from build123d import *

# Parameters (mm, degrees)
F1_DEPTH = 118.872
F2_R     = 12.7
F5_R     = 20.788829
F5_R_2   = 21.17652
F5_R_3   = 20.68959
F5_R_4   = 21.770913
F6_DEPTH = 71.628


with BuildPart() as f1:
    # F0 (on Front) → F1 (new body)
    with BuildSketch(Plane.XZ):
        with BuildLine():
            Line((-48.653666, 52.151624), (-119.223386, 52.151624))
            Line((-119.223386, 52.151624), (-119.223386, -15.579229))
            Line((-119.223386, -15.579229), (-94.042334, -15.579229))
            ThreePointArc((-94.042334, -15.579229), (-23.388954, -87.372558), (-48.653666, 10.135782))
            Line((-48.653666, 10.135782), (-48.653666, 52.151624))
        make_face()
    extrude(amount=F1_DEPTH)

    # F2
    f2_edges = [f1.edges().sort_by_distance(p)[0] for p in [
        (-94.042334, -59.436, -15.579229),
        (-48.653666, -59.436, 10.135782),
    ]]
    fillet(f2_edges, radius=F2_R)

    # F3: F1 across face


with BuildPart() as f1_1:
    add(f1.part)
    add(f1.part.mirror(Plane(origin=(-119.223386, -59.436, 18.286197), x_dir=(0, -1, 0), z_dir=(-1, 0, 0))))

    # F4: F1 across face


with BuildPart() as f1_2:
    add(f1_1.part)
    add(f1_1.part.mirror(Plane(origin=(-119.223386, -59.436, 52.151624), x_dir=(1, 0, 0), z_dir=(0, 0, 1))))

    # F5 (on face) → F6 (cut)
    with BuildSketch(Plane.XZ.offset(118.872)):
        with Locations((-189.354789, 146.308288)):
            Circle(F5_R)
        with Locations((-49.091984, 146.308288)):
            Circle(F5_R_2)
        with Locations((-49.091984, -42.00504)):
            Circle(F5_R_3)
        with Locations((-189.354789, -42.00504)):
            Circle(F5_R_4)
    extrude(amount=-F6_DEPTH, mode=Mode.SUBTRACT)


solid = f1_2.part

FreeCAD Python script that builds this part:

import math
import FreeCAD as App
import Part
import Sketcher
Q = App.Units.Quantity


def edges_at(feature, points):
    """Names of the edges that pass closest to the given points."""
    edges = feature.Shape.Edges
    near = lambda p: min(range(len(edges)), key=lambda i: edges[i].distToShape(Part.Vertex(*p))[0])
    return sorted({f"Edge{near(p) + 1}" for p in points})

doc = App.newDocument("Part")
body = doc.addObject("PartDesign::Body", "Body")

sketch1 = body.newObject("Sketcher::SketchObject", "Sketch")
sketch1.AttachmentSupport = (doc.getObject("XZ_Plane"), [""])
sketch1.MapMode = "FlatFace"
sketch1.addGeometry([
    Part.LineSegment(App.Vector(-49, 52, 0), App.Vector(-119, 52, 0)),
    Part.LineSegment(App.Vector(-119, 52, 0), App.Vector(-119, -16, 0)),
    Part.LineSegment(App.Vector(-119, -16, 0), App.Vector(-94, -16, 0)),
    Part.ArcOfCircle(Part.Circle(App.Vector(-49, -42, 0), App.Vector(0, 0, 1), 52), math.radians(150), math.radians(450)),
    Part.LineSegment(App.Vector(-49, 10, 0), App.Vector(-49, 52, 0)),
], False)
sketch1.addConstraint([
    Sketcher.Constraint("Coincident", 0, 2, 1, 1),
    Sketcher.Constraint("Coincident", 1, 2, 2, 1),
    Sketcher.Constraint("Coincident", 2, 2, 3, 1),
    Sketcher.Constraint("Coincident", 3, 2, 4, 1),
    Sketcher.Constraint("Coincident", 4, 2, 0, 1),
    Sketcher.Constraint("Horizontal", 0),
    Sketcher.Constraint("Vertical", 1),
    Sketcher.Constraint("Horizontal", 2),
    Sketcher.Constraint("Vertical", 4),
    Sketcher.Constraint("Radius", 3, 52.142664),
    Sketcher.Constraint("DistanceX", 0, 2, 0, 1, 70.56972),
    Sketcher.Constraint("DistanceX", 0, 2, 3, 3, 70.131402),
    Sketcher.Constraint("DistanceX", 2, 1, 2, 2, 25.181052),
    Sketcher.Constraint("DistanceY", 1, 2, 1, 1, 67.730853),
    Sketcher.Constraint("DistanceY", 3, 3, -1, 1, 42.00504),
    Sketcher.Constraint("DistanceX", 3, 3, -1, 1, 49.091984),
])
pad1 = body.newObject("PartDesign::Pad", "Pad")
pad1.Profile = sketch1
pad1.Length = Q("4.68 in")
doc.recompute()

fillet = body.newObject("PartDesign::Fillet", "Fillet")
fillet.Base = (pad1, edges_at(pad1, [(-94.042, -59.436, -15.579), (-48.654, -59.436, 10.136)]))
fillet.Radius = Q("0.5 in")
body2 = doc.addObject("PartDesign::Body", "Body001")
doc.recompute()

body2.BaseFeature = body
doc.recompute()

mirroring = doc.addObject("Part::Mirroring", "Mirroring")
mirroring.Source = body
mirroring.Base = App.Vector(-119.223386, -59.436, 18.286197)
mirroring.Normal = App.Vector(-1, 0, 0)
body3 = doc.addObject("PartDesign::Body", "Body002")
body3.BaseFeature = mirroring
boolean = body2.newObject("PartDesign::Boolean", "Boolean")
boolean.Type = "Fuse"
boolean.addObjects([body3])
doc.recompute()
body4 = doc.addObject("PartDesign::Body", "Body003")
doc.recompute()

body4.BaseFeature = body2
doc.recompute()

mirroring2 = doc.addObject("Part::Mirroring", "Mirroring001")
mirroring2.Source = body2
mirroring2.Base = App.Vector(-119.223386, -59.436, 52.151624)
mirroring2.Normal = App.Vector(0, 0, 1)
body5 = doc.addObject("PartDesign::Body", "Body004")
body5.BaseFeature = mirroring2
boolean2 = body4.newObject("PartDesign::Boolean", "Boolean001")
boolean2.Type = "Fuse"
boolean2.addObjects([body5])
doc.recompute()

sketch2 = body4.newObject("Sketcher::SketchObject", "Sketch001")
sketch2.AttachmentSupport = (doc.getObject("XZ_Plane003"), [""])
sketch2.MapMode = "FlatFace"
sketch2.AttachmentOffset = App.Placement(App.Vector(0, 0, 4.68 * 25.4), App.Rotation())
sketch2.addGeometry([
    Part.Circle(App.Vector(-189, 146, 0), App.Vector(0, 0, 1), 21),
    Part.Circle(App.Vector(-49, 146, 0), App.Vector(0, 0, 1), 21),
    Part.Circle(App.Vector(-49, -42, 0), App.Vector(0, 0, 1), 21),
    Part.Circle(App.Vector(-189, -42, 0), App.Vector(0, 0, 1), 22),
], False)
sketch2.addConstraint([
    Sketcher.Constraint("Horizontal", 0, 3, 1, 3),
    Sketcher.Constraint("Horizontal", 2, 3, 3, 3),
    Sketcher.Constraint("Vertical", 1, 3, 2, 3),
    Sketcher.Constraint("Vertical", 0, 3, 3, 3),
    Sketcher.Constraint("Diameter", 1, 42.35304),
    Sketcher.Constraint("Diameter", 2, 41.37918),
    Sketcher.Constraint("Diameter", 0, 41.577658),
    Sketcher.Constraint("Diameter", 3, 43.541826),
    Sketcher.Constraint("DistanceX", 0, 3, -1, 1, 189.354789),
    Sketcher.Constraint("DistanceY", -1, 1, 0, 3, 146.308288),
    Sketcher.Constraint("DistanceY", 2, 3, -1, 1, 42.00504),
    Sketcher.Constraint("DistanceX", 1, 3, -1, 1, 49.091984),
])
pocket1 = body4.newObject("PartDesign::Pocket", "Pocket")
pocket1.Profile = sketch2
pocket1.Length = Q("2.82 in")
mirroring.Visibility = False
mirroring2.Visibility = False

doc.recompute()
